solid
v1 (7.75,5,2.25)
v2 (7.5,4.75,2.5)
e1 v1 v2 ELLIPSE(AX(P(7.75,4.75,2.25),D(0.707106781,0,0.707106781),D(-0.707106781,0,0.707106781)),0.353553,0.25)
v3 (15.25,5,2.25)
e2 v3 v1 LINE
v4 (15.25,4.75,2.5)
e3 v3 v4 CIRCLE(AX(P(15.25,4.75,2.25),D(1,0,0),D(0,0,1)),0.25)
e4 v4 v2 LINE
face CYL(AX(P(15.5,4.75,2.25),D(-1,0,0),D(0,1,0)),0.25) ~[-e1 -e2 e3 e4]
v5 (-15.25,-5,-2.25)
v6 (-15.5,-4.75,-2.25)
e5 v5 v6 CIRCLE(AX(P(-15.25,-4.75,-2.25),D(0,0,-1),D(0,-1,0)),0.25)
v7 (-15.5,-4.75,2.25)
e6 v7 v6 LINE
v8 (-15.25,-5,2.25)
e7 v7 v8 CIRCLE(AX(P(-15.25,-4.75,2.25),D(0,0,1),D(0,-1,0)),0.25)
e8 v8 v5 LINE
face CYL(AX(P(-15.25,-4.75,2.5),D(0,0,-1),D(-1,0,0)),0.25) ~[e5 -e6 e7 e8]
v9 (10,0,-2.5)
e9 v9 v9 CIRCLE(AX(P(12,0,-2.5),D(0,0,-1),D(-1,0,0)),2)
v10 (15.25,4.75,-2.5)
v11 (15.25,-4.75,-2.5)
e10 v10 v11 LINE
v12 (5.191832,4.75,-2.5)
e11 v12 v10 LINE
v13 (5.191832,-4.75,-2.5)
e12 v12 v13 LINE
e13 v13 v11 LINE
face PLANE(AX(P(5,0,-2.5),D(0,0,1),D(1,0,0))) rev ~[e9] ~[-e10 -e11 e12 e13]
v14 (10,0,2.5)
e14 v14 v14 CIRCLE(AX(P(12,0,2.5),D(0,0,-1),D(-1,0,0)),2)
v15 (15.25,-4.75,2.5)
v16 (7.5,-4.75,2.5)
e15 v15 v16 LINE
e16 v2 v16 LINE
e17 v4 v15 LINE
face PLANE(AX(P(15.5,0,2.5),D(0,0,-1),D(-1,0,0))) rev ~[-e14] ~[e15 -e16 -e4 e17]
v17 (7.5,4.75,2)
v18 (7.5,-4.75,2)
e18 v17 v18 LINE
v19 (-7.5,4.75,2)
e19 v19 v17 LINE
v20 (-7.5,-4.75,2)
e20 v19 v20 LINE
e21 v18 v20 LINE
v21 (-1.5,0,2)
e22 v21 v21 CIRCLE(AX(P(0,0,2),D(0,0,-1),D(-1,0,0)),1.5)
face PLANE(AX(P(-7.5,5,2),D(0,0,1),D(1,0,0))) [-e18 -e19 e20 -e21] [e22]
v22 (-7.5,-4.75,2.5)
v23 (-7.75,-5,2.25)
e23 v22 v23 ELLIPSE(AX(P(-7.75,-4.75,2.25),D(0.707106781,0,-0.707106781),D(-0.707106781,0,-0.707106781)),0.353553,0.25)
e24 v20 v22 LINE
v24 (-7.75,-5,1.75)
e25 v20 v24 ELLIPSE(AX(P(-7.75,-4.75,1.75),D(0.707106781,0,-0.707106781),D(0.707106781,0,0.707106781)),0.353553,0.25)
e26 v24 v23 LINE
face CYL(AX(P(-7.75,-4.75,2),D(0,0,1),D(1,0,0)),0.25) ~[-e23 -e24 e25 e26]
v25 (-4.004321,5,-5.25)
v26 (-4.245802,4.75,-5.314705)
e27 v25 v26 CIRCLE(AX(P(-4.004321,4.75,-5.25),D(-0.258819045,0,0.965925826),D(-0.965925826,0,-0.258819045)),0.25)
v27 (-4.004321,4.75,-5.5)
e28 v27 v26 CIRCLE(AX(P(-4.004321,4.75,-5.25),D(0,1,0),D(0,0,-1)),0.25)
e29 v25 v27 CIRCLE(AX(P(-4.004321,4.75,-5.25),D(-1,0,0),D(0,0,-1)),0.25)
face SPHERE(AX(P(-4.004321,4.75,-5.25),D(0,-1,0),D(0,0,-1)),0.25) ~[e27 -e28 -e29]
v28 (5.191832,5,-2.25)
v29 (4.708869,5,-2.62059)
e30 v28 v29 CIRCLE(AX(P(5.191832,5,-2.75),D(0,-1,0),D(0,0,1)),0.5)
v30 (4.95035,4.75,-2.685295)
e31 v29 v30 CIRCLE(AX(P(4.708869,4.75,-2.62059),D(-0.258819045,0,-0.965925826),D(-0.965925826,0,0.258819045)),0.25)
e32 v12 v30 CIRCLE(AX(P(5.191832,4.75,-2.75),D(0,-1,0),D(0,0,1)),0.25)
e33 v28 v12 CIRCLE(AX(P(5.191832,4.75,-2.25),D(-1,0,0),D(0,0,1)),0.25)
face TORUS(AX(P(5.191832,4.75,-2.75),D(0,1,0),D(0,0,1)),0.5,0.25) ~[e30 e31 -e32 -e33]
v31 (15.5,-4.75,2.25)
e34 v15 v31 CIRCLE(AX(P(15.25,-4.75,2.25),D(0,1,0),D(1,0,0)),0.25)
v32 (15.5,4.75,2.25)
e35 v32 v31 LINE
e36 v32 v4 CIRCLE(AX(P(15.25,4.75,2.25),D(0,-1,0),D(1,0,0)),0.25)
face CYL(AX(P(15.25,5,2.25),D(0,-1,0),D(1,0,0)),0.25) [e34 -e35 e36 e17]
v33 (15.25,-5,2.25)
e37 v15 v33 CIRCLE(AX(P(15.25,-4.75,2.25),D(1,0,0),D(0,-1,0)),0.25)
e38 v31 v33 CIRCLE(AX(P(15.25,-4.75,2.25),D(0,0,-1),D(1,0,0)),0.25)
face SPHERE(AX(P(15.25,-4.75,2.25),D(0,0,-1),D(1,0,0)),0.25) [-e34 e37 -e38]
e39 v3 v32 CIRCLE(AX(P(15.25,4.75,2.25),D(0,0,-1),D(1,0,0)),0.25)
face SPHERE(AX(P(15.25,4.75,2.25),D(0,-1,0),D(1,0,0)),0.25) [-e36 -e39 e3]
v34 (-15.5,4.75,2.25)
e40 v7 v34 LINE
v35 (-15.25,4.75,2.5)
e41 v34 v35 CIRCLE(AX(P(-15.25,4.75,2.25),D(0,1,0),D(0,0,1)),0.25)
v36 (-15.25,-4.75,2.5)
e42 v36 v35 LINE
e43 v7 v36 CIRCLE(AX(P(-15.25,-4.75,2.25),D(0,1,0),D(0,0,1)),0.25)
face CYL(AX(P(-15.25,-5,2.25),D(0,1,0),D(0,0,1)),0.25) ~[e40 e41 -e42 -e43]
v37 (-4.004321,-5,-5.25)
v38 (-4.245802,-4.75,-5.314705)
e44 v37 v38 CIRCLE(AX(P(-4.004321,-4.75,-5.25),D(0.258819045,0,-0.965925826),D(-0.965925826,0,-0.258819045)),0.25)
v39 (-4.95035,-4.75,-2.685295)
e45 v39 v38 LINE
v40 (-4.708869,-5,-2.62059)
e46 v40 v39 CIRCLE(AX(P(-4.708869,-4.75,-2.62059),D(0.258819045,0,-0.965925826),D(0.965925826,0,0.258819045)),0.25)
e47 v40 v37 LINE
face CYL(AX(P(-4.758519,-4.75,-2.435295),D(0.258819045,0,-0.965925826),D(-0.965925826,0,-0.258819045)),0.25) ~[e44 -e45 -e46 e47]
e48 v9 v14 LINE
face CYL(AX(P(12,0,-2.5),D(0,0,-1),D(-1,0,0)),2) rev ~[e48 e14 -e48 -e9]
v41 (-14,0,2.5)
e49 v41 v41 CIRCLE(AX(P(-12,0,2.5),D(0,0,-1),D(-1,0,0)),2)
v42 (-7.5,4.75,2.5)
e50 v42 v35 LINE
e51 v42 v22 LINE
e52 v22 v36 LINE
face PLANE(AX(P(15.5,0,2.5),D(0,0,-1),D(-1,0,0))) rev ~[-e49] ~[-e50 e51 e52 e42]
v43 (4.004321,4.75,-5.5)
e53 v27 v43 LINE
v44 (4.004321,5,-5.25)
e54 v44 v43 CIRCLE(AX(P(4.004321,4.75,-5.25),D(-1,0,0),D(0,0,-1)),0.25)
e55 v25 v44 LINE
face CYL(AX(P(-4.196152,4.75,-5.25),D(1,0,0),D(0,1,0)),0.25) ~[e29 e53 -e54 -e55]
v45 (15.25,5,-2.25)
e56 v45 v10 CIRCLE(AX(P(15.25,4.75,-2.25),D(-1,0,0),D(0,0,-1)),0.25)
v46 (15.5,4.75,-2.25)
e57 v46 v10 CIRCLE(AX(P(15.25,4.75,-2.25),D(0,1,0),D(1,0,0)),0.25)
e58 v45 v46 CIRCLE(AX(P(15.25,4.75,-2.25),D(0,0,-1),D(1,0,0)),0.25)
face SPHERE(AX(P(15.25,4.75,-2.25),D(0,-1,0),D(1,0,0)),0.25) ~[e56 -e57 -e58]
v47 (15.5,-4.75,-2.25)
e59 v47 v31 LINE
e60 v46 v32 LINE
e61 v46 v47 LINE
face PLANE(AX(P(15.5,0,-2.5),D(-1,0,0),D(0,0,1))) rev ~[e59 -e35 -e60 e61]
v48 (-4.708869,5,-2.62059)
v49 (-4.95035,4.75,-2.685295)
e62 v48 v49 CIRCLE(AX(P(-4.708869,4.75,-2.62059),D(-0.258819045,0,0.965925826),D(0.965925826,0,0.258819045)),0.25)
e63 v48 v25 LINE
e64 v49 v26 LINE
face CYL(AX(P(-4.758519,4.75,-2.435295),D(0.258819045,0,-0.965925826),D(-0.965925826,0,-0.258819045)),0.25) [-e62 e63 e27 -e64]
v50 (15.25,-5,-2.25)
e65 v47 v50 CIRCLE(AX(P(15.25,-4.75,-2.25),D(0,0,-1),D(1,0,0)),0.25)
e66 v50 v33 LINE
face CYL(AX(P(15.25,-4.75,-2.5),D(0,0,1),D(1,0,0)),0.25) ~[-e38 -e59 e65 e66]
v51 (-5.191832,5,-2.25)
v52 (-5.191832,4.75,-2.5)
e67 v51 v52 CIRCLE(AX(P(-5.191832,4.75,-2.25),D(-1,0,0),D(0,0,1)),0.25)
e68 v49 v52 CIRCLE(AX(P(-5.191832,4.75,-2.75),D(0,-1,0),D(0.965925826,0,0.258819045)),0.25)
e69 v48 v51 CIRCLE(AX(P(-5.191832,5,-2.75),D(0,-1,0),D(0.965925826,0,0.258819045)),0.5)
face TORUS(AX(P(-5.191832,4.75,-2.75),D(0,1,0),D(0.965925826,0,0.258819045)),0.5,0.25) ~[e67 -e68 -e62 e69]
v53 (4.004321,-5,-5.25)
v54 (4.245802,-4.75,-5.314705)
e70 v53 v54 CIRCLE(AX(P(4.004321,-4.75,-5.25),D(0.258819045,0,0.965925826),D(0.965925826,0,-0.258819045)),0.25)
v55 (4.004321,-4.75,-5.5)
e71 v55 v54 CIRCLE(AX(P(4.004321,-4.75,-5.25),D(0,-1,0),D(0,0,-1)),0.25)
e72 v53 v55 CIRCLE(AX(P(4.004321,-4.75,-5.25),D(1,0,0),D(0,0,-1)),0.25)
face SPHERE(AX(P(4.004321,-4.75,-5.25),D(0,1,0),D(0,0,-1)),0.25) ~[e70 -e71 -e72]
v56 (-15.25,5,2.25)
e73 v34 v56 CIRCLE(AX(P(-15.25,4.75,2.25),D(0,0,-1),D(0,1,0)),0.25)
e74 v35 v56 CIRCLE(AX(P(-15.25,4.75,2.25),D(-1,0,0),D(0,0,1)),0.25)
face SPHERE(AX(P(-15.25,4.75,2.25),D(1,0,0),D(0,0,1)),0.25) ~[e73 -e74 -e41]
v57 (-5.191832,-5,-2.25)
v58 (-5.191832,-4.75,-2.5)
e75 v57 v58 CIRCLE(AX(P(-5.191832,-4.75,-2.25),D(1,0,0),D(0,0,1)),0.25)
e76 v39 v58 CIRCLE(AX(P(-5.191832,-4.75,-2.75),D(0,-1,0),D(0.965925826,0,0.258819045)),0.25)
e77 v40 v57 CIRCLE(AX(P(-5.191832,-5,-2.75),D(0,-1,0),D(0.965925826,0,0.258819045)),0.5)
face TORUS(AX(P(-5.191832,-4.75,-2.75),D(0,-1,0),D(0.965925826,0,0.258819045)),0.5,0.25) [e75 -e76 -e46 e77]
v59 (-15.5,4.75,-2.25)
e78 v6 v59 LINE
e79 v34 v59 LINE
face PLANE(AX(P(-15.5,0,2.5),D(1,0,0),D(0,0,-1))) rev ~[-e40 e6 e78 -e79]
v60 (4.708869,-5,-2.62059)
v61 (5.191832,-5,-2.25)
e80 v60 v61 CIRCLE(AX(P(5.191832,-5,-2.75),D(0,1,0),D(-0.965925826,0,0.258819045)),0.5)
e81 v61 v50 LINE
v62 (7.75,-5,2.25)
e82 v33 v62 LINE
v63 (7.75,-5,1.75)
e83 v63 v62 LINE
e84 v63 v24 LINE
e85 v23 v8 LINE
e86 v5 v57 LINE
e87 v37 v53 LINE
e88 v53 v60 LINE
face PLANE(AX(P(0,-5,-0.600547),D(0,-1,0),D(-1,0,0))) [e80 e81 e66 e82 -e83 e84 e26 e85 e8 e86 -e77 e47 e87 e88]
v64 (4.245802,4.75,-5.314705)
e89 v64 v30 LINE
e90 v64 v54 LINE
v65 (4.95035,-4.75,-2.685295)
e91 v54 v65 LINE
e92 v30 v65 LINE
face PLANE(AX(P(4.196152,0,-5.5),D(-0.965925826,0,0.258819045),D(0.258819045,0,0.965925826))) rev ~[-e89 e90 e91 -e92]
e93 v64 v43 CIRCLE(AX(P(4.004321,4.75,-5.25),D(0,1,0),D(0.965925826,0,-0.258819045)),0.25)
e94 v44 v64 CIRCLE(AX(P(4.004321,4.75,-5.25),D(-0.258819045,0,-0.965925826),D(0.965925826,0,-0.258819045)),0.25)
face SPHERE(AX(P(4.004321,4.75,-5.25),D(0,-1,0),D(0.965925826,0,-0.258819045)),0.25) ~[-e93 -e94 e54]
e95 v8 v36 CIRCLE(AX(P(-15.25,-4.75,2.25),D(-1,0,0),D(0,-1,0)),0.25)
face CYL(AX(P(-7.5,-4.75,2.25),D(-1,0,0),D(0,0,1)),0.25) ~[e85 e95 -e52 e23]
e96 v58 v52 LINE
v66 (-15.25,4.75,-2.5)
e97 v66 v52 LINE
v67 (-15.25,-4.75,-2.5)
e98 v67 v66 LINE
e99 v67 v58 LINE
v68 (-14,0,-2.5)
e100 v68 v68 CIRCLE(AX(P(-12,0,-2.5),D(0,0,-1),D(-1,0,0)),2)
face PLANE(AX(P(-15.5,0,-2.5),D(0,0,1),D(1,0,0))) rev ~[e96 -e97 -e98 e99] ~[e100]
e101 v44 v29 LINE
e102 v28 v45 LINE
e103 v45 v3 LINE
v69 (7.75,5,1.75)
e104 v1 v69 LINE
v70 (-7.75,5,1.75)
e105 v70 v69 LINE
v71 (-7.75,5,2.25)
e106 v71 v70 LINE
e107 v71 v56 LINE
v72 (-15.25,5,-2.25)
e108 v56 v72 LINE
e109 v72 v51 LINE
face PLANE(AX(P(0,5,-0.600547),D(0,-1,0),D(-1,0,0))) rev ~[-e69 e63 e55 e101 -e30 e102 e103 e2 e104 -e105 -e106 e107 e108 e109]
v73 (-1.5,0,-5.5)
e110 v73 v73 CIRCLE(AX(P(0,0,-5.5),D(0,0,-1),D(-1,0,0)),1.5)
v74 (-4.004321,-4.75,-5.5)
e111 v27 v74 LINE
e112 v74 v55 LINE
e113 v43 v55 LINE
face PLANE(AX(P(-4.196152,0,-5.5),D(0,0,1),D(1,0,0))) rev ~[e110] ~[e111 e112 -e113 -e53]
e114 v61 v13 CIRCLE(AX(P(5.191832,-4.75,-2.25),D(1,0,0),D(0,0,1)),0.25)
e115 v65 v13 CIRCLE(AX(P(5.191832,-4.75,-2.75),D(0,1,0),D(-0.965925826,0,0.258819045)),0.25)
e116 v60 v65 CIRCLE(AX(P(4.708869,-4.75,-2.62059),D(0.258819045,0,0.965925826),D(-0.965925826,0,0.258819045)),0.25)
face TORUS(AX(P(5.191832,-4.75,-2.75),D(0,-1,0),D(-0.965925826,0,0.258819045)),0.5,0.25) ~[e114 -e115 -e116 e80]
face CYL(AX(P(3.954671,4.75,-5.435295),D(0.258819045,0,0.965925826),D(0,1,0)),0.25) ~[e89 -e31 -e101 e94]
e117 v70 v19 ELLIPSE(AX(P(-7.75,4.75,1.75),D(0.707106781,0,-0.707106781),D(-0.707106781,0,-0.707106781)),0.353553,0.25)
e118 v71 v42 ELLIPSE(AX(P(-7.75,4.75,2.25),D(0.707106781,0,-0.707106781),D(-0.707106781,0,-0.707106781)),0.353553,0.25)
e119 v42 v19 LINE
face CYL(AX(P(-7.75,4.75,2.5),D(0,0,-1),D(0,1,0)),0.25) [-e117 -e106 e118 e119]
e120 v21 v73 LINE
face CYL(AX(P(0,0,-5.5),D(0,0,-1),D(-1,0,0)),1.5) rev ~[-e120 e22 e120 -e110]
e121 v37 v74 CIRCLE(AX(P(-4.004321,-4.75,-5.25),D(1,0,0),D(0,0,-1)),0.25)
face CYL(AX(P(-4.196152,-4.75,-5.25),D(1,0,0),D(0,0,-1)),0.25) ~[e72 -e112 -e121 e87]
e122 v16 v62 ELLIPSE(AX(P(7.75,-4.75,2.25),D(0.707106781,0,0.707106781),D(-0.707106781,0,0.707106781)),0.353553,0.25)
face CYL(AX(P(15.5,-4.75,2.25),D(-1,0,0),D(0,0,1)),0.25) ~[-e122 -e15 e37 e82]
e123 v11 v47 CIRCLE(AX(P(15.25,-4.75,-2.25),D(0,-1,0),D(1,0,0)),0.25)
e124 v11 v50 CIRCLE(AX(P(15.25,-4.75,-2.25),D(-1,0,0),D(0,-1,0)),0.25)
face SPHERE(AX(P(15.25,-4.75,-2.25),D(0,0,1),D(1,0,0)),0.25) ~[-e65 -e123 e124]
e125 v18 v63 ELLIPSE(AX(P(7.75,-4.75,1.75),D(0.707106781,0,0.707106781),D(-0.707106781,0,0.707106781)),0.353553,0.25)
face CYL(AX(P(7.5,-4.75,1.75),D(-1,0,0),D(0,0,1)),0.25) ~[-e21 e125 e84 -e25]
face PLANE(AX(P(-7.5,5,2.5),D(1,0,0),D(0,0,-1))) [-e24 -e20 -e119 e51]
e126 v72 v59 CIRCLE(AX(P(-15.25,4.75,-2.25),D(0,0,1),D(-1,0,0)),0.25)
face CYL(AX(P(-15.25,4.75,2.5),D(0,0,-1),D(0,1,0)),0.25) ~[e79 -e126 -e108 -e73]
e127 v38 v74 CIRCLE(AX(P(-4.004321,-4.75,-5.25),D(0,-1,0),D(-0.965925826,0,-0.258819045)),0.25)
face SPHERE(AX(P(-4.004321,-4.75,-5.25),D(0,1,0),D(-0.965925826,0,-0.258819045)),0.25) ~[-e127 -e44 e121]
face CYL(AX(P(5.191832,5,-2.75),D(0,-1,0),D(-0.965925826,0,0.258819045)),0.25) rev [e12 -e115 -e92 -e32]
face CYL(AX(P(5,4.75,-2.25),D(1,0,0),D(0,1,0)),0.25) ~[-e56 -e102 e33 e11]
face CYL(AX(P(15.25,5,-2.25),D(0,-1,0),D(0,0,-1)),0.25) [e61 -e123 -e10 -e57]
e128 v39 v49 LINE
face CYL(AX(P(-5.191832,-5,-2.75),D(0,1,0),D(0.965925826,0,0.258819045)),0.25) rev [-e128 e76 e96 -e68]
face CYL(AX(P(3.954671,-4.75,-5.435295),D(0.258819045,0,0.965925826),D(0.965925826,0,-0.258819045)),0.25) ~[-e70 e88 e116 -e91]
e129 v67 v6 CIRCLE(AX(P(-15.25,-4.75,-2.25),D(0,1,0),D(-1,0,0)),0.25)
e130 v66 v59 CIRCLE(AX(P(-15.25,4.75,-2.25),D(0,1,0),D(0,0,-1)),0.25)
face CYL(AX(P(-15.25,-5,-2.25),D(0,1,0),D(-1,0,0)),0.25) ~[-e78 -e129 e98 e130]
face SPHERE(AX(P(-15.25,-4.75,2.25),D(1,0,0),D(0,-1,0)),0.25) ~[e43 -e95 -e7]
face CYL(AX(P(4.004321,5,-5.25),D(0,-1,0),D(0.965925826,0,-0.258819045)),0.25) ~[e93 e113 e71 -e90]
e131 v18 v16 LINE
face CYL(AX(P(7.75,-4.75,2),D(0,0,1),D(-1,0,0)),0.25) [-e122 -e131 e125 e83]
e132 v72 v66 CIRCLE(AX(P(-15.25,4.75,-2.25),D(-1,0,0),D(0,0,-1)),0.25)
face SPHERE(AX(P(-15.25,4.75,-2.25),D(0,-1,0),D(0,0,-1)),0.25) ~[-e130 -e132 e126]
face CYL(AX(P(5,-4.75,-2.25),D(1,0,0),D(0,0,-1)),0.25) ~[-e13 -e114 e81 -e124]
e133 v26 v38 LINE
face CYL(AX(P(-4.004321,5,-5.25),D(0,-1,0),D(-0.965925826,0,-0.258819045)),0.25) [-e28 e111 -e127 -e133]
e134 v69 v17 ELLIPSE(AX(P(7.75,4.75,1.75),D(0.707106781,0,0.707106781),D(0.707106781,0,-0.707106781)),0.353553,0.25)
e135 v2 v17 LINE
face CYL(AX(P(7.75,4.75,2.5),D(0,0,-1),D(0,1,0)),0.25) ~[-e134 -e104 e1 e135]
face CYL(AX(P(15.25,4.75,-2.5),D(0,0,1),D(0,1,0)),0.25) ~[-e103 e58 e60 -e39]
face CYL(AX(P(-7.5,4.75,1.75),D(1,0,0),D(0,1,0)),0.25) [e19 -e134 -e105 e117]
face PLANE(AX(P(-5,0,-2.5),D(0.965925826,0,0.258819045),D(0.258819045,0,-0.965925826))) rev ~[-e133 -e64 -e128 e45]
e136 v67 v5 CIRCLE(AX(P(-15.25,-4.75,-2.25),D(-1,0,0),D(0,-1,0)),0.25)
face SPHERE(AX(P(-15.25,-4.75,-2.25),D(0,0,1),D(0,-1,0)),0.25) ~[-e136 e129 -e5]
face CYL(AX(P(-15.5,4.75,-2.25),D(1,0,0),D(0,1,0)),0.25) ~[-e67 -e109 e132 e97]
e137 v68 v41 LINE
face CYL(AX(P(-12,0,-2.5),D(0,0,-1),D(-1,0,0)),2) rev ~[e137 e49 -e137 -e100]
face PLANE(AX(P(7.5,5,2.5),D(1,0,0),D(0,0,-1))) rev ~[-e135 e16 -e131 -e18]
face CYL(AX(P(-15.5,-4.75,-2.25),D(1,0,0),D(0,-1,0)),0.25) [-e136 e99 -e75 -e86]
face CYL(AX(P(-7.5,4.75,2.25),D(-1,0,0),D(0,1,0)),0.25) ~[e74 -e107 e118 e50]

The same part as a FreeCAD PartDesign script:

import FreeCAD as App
import Part
import Sketcher

V = App.Vector
Q = App.Units.Quantity


def edges_at(feature, points):
    """Names of the edges that pass closest to the given points."""
    edges = feature.Shape.Edges
    near = lambda p: min(range(len(edges)), key=lambda i: edges[i].distToShape(Part.Vertex(*p))[0])
    return sorted({f"Edge{near(p) + 1}" for p in points})

doc = App.newDocument("Part")
body = doc.addObject("PartDesign::Body", "Body")

# Sketch on XZ plane
sketch1 = doc.addObject("Sketcher::SketchObject", "Sketch")
body.addObject(sketch1)
sketch1.AttachmentSupport = (doc.XZ_Plane, [""])
sketch1.MapMode = "FlatFace"
sketch1.addGeometry([
    Part.LineSegment(V(-4.2, -5.5, 0), V(-5, -2.5, 0)),  # 0
    Part.LineSegment(V(-5, -2.5, 0), V(-15.5, -2.5, 0)),  # 1
    Part.LineSegment(V(-15.5, -2.5, 0), V(-15.5, 2.5, 0)),  # 2
    Part.LineSegment(V(-15.5, 2.5, 0), V(15.5, 2.5, 0)),  # 3
    Part.LineSegment(V(15.5, 2.5, 0), V(15.5, -2.5, 0)),  # 4
    Part.LineSegment(V(15.5, -2.5, 0), V(5, -2.5, 0)),  # 5
    Part.LineSegment(V(5, -2.5, 0), V(4.2, -5.5, 0)),  # 6
    Part.LineSegment(V(4.2, -5.5, 0), V(-4.2, -5.5, 0)),  # 7
], False)
sketch1.addConstraint([
    Sketcher.Constraint("Coincident", 0, 2, 1, 1),
    Sketcher.Constraint("Coincident", 1, 2, 2, 1),
    Sketcher.Constraint("Coincident", 2, 2, 3, 1),
    Sketcher.Constraint("Coincident", 3, 2, 4, 1),
    Sketcher.Constraint("Coincident", 4, 2, 5, 1),
    Sketcher.Constraint("Coincident", 5, 2, 6, 1),
    Sketcher.Constraint("Coincident", 6, 2, 7, 1),
    Sketcher.Constraint("Coincident", 7, 2, 0, 1),
    Sketcher.Constraint("Horizontal", 1),
    Sketcher.Constraint("Vertical", 2),
    Sketcher.Constraint("Horizontal", 3),
    Sketcher.Constraint("Vertical", 4),
    Sketcher.Constraint("Horizontal", 5),
    Sketcher.Constraint("Horizontal", 7),
    Sketcher.Constraint("Symmetric", 1, 2, 3, 2, -1, 1),
    Sketcher.Constraint("Symmetric", 0, 2, 5, 2, -2),
    Sketcher.Constraint("Equal", 0, 6),
    Sketcher.Constraint("DistanceX", 3, 1, 3, 2, 31.0),
    Sketcher.Constraint("DistanceY", 2, 1, 2, 2, 5.0),
    Sketcher.Constraint("Angle", 0, Q("105 deg")),
    Sketcher.Constraint("DistanceX", 1, 2, 1, 1, 10.5),
    Sketcher.Constraint("DistanceY", 6, 2, 5, 2, 3.0),
])
pad1 = doc.addObject("PartDesign::Pad", "Pad")
body.addObject(pad1)
pad1.Profile = sketch1
pad1.Length = 10
pad1.Midplane = True

# Sketch on XZ plane
sketch2 = doc.addObject("Sketcher::SketchObject", "Sketch001")
body.addObject(sketch2)
sketch2.AttachmentSupport = (doc.XZ_Plane, [""])
sketch2.MapMode = "FlatFace"
sketch2.AttachmentOffset = App.Placement(V(0, 0, -5), App.Rotation())
sketch2.addGeometry([
    Part.LineSegment(V(-7.5, 2, 0), V(-7.5, 2.5, 0)),
    Part.LineSegment(V(-7.5, 2.5, 0), V(7.5, 2.5, 0)),
    Part.LineSegment(V(7.5, 2.5, 0), V(7.5, 2, 0)),
    Part.LineSegment(V(7.5, 2, 0), V(-7.5, 2, 0)),
], False)
sketch2.addConstraint([
    Sketcher.Constraint("Coincident", 0, 2, 1, 1),
    Sketcher.Constraint("Coincident", 1, 2, 2, 1),
    Sketcher.Constraint("Coincident", 2, 2, 3, 1),
    Sketcher.Constraint("Coincident", 3, 2, 0, 1),
    Sketcher.Constraint("Vertical", 0),
    Sketcher.Constraint("Horizontal", 1),
    Sketcher.Constraint("Vertical", 2),
    Sketcher.Constraint("Horizontal", 3),
    Sketcher.Constraint("DistanceX", 1, 1, 1, 2, 15.0),
    Sketcher.Constraint("DistanceY", 0, 1, 0, 2, 0.5),
    Sketcher.Constraint("DistanceY", -1, 1, 2, 2, 2.0),
    Sketcher.Constraint("DistanceX", 0, 2, -1, 1, 7.5),
])
pocket1 = doc.addObject("PartDesign::Pocket", "Pocket")
body.addObject(pocket1)
pocket1.Profile = sketch2
pocket1.Type = "ThroughAll"
pocket1.Reversed = True

# Sketch on XY plane
sketch3 = doc.addObject("Sketcher::SketchObject", "Sketch002")
body.addObject(sketch3)
sketch3.AttachmentSupport = (doc.XY_Plane, [""])
sketch3.MapMode = "FlatFace"
sketch3.AttachmentOffset = App.Placement(V(0, 0, -2.5), App.Rotation())
sketch3.addGeometry([
    Part.Circle(V(0, 0, 0), V(0, 0, 1), 1.5),
    Part.Circle(V(-12, 0, 0), V(0, 0, 1), 2),
    Part.Circle(V(12, 0, 0), V(0, 0, 1), 2),
], False)
sketch3.addConstraint([
    Sketcher.Constraint("Coincident", 0, 3, -1, 1),
    Sketcher.Constraint("Equal", 1, 2),
    Sketcher.Constraint("Symmetric", 1, 3, 2, 3, -1, 1),
    Sketcher.Constraint("PointOnObject", 1, 3, -1),
    Sketcher.Constraint("Diameter", 0, 3.0),
    Sketcher.Constraint("Diameter", 1, 4.0),
    Sketcher.Constraint("DistanceX", 1, 3, -1, 1, 12.0),
])
pocket2 = doc.addObject("PartDesign::Pocket", "Pocket001")
body.addObject(pocket2)
pocket2.Profile = sketch3
pocket2.Type = "ThroughAll"
pocket2.Reversed = True

# Sketch on XY plane
sketch4 = doc.addObject("Sketcher::SketchObject", "Sketch003")
body.addObject(sketch4)
sketch4.AttachmentSupport = (doc.XY_Plane, [""])
sketch4.MapMode = "FlatFace"
sketch4.AttachmentOffset = App.Placement(V(0, 0, -5.5), App.Rotation())
sketch4.addGeometry(Part.Circle(V(0, 0, 0), V(0, 0, 1), 1.5), False)
sketch4.addConstraint([
    Sketcher.Constraint("Coincident", 0, 3, -1, 1),
    Sketcher.Constraint("Diameter", 0, 3.0),
])
pocket3 = doc.addObject("PartDesign::Pocket", "Pocket002")
body.addObject(pocket3)
pocket3.Profile = sketch4
pocket3.Type = "ThroughAll"
pocket3.Reversed = True
doc.recompute()

fillet = doc.addObject("PartDesign::Fillet", "Fillet")
body.addObject(fillet)
fillet.Base = (pocket3, edges_at(pocket3, [
    (15.5, -5, 0),
    (-11.5, -5, 2.5),
    (-15.5, -5, 0),
    (-10.25, -5, -2.5),
    (-11.5, 5, 2.5),
    (-5, 0, -2.5),
    (-4.196, 0, -5.5),
    (4.196, 0, -5.5),
    (5, 0, -2.5),
    (15.5, 0, -2.5),
    (15.5, 0, 2.5),
    (-15.5, 0, 2.5),
    (-15.5, 0, -2.5),
    (15.5, 5, 0),
    (10.25, 5, -2.5),
    (4.598, 5, -4),
    (11.5, -5, 2.5),
    (11.5, 5, 2.5),
    (0, 5, -5.5),
    (-7.5, -5, 2.25),
    (0, -5, 2),
    (7.5, -5, 2.25),
    (-7.5, 5, 2.25),
    (-4.598, 5, -4),
    (7.5, 5, 2.25),
    (0, 5, 2),
    (-10.25, 5, -2.5),
    (-4.598, -5, -4),
    (-15.5, 5, 0),
    (0, -5, -5.5),
    (4.598, -5, -4),
    (10.25, -5, -2.5),
]))
fillet.Radius = 0.25

doc.recompute()
